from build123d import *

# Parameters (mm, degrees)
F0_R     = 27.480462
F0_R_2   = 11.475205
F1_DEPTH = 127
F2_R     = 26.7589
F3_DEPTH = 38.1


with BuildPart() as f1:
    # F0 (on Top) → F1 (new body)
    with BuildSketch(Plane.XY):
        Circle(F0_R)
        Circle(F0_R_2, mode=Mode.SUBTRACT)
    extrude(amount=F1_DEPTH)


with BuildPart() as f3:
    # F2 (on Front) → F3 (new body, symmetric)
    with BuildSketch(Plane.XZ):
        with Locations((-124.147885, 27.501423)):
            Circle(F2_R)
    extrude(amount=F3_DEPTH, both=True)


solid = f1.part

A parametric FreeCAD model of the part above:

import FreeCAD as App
import Part
import Sketcher
from FreeCAD import Vector
Q = App.Units.Quantity

doc = App.newDocument("Part")
params = doc.addObject("Spreadsheet::Sheet", "Params")
for row, (alias, value) in enumerate([
    ("pad1_length", "5 in"),
    ("sketch2_diameter", "2.107 in"),
    ("pad2_length", "3 in"),
], start=1):
    params.set(f"A{row}", alias)
    params.set(f"B{row}", "=" + value)
    params.setAlias(f"B{row}", alias)

body = doc.addObject("PartDesign::Body", "Body")

sketch1 = doc.addObject("Sketcher::SketchObject", "Sketch")
body.addObject(sketch1)
sketch1.AttachmentSupport = (doc.XY_Plane, [""])
sketch1.MapMode = "FlatFace"
sketch1.addGeometry([
    Part.Circle(Vector(0, 0, 0), Vector(0, 0, 1), 27),
    Part.Circle(Vector(0, 0, 0), Vector(0, 0, 1), 11),
], False)
sketch1.addConstraint([
    Sketcher.Constraint("Coincident", 0, 3, -1, 1),
    Sketcher.Constraint("Coincident", 1, 3, -1, 1),
    Sketcher.Constraint("Diameter", 1, 22.95041),
    Sketcher.Constraint("Diameter", 0, 54.960924),
])
pad1 = doc.addObject("PartDesign::Pad", "Pad")
body.addObject(pad1)
pad1.Profile = sketch1
pad1.setExpression("Length", "Params.pad1_length")
body2 = doc.addObject("PartDesign::Body", "Body001")

sketch2 = doc.addObject("Sketcher::SketchObject", "Sketch001")
body2.addObject(sketch2)
sketch2.AttachmentSupport = (doc.getObject("XZ_Plane001"), [""])
sketch2.MapMode = "FlatFace"
sketch2.addGeometry(Part.Circle(Vector(-124, 28, 0), Vector(0, 0, 1), 27), False)
sketch2.addConstraint([
    Sketcher.Constraint("Diameter", 0, Q("2.107 in")),
    Sketcher.Constraint("DistanceX", 0, 3, -1, 1, 124.147885),
    Sketcher.Constraint("DistanceY", -1, 1, 0, 3, 27.501423),
])
sketch2.setExpression("Constraints[0]", "Params.sketch2_diameter")
pad2 = doc.addObject("PartDesign::Pad", "Pad001")
body2.addObject(pad2)
pad2.Profile = sketch2
pad2.setExpression("Length", "Params.pad2_length")
pad2.Midplane = True
body2.Visibility = False

doc.recompute()
